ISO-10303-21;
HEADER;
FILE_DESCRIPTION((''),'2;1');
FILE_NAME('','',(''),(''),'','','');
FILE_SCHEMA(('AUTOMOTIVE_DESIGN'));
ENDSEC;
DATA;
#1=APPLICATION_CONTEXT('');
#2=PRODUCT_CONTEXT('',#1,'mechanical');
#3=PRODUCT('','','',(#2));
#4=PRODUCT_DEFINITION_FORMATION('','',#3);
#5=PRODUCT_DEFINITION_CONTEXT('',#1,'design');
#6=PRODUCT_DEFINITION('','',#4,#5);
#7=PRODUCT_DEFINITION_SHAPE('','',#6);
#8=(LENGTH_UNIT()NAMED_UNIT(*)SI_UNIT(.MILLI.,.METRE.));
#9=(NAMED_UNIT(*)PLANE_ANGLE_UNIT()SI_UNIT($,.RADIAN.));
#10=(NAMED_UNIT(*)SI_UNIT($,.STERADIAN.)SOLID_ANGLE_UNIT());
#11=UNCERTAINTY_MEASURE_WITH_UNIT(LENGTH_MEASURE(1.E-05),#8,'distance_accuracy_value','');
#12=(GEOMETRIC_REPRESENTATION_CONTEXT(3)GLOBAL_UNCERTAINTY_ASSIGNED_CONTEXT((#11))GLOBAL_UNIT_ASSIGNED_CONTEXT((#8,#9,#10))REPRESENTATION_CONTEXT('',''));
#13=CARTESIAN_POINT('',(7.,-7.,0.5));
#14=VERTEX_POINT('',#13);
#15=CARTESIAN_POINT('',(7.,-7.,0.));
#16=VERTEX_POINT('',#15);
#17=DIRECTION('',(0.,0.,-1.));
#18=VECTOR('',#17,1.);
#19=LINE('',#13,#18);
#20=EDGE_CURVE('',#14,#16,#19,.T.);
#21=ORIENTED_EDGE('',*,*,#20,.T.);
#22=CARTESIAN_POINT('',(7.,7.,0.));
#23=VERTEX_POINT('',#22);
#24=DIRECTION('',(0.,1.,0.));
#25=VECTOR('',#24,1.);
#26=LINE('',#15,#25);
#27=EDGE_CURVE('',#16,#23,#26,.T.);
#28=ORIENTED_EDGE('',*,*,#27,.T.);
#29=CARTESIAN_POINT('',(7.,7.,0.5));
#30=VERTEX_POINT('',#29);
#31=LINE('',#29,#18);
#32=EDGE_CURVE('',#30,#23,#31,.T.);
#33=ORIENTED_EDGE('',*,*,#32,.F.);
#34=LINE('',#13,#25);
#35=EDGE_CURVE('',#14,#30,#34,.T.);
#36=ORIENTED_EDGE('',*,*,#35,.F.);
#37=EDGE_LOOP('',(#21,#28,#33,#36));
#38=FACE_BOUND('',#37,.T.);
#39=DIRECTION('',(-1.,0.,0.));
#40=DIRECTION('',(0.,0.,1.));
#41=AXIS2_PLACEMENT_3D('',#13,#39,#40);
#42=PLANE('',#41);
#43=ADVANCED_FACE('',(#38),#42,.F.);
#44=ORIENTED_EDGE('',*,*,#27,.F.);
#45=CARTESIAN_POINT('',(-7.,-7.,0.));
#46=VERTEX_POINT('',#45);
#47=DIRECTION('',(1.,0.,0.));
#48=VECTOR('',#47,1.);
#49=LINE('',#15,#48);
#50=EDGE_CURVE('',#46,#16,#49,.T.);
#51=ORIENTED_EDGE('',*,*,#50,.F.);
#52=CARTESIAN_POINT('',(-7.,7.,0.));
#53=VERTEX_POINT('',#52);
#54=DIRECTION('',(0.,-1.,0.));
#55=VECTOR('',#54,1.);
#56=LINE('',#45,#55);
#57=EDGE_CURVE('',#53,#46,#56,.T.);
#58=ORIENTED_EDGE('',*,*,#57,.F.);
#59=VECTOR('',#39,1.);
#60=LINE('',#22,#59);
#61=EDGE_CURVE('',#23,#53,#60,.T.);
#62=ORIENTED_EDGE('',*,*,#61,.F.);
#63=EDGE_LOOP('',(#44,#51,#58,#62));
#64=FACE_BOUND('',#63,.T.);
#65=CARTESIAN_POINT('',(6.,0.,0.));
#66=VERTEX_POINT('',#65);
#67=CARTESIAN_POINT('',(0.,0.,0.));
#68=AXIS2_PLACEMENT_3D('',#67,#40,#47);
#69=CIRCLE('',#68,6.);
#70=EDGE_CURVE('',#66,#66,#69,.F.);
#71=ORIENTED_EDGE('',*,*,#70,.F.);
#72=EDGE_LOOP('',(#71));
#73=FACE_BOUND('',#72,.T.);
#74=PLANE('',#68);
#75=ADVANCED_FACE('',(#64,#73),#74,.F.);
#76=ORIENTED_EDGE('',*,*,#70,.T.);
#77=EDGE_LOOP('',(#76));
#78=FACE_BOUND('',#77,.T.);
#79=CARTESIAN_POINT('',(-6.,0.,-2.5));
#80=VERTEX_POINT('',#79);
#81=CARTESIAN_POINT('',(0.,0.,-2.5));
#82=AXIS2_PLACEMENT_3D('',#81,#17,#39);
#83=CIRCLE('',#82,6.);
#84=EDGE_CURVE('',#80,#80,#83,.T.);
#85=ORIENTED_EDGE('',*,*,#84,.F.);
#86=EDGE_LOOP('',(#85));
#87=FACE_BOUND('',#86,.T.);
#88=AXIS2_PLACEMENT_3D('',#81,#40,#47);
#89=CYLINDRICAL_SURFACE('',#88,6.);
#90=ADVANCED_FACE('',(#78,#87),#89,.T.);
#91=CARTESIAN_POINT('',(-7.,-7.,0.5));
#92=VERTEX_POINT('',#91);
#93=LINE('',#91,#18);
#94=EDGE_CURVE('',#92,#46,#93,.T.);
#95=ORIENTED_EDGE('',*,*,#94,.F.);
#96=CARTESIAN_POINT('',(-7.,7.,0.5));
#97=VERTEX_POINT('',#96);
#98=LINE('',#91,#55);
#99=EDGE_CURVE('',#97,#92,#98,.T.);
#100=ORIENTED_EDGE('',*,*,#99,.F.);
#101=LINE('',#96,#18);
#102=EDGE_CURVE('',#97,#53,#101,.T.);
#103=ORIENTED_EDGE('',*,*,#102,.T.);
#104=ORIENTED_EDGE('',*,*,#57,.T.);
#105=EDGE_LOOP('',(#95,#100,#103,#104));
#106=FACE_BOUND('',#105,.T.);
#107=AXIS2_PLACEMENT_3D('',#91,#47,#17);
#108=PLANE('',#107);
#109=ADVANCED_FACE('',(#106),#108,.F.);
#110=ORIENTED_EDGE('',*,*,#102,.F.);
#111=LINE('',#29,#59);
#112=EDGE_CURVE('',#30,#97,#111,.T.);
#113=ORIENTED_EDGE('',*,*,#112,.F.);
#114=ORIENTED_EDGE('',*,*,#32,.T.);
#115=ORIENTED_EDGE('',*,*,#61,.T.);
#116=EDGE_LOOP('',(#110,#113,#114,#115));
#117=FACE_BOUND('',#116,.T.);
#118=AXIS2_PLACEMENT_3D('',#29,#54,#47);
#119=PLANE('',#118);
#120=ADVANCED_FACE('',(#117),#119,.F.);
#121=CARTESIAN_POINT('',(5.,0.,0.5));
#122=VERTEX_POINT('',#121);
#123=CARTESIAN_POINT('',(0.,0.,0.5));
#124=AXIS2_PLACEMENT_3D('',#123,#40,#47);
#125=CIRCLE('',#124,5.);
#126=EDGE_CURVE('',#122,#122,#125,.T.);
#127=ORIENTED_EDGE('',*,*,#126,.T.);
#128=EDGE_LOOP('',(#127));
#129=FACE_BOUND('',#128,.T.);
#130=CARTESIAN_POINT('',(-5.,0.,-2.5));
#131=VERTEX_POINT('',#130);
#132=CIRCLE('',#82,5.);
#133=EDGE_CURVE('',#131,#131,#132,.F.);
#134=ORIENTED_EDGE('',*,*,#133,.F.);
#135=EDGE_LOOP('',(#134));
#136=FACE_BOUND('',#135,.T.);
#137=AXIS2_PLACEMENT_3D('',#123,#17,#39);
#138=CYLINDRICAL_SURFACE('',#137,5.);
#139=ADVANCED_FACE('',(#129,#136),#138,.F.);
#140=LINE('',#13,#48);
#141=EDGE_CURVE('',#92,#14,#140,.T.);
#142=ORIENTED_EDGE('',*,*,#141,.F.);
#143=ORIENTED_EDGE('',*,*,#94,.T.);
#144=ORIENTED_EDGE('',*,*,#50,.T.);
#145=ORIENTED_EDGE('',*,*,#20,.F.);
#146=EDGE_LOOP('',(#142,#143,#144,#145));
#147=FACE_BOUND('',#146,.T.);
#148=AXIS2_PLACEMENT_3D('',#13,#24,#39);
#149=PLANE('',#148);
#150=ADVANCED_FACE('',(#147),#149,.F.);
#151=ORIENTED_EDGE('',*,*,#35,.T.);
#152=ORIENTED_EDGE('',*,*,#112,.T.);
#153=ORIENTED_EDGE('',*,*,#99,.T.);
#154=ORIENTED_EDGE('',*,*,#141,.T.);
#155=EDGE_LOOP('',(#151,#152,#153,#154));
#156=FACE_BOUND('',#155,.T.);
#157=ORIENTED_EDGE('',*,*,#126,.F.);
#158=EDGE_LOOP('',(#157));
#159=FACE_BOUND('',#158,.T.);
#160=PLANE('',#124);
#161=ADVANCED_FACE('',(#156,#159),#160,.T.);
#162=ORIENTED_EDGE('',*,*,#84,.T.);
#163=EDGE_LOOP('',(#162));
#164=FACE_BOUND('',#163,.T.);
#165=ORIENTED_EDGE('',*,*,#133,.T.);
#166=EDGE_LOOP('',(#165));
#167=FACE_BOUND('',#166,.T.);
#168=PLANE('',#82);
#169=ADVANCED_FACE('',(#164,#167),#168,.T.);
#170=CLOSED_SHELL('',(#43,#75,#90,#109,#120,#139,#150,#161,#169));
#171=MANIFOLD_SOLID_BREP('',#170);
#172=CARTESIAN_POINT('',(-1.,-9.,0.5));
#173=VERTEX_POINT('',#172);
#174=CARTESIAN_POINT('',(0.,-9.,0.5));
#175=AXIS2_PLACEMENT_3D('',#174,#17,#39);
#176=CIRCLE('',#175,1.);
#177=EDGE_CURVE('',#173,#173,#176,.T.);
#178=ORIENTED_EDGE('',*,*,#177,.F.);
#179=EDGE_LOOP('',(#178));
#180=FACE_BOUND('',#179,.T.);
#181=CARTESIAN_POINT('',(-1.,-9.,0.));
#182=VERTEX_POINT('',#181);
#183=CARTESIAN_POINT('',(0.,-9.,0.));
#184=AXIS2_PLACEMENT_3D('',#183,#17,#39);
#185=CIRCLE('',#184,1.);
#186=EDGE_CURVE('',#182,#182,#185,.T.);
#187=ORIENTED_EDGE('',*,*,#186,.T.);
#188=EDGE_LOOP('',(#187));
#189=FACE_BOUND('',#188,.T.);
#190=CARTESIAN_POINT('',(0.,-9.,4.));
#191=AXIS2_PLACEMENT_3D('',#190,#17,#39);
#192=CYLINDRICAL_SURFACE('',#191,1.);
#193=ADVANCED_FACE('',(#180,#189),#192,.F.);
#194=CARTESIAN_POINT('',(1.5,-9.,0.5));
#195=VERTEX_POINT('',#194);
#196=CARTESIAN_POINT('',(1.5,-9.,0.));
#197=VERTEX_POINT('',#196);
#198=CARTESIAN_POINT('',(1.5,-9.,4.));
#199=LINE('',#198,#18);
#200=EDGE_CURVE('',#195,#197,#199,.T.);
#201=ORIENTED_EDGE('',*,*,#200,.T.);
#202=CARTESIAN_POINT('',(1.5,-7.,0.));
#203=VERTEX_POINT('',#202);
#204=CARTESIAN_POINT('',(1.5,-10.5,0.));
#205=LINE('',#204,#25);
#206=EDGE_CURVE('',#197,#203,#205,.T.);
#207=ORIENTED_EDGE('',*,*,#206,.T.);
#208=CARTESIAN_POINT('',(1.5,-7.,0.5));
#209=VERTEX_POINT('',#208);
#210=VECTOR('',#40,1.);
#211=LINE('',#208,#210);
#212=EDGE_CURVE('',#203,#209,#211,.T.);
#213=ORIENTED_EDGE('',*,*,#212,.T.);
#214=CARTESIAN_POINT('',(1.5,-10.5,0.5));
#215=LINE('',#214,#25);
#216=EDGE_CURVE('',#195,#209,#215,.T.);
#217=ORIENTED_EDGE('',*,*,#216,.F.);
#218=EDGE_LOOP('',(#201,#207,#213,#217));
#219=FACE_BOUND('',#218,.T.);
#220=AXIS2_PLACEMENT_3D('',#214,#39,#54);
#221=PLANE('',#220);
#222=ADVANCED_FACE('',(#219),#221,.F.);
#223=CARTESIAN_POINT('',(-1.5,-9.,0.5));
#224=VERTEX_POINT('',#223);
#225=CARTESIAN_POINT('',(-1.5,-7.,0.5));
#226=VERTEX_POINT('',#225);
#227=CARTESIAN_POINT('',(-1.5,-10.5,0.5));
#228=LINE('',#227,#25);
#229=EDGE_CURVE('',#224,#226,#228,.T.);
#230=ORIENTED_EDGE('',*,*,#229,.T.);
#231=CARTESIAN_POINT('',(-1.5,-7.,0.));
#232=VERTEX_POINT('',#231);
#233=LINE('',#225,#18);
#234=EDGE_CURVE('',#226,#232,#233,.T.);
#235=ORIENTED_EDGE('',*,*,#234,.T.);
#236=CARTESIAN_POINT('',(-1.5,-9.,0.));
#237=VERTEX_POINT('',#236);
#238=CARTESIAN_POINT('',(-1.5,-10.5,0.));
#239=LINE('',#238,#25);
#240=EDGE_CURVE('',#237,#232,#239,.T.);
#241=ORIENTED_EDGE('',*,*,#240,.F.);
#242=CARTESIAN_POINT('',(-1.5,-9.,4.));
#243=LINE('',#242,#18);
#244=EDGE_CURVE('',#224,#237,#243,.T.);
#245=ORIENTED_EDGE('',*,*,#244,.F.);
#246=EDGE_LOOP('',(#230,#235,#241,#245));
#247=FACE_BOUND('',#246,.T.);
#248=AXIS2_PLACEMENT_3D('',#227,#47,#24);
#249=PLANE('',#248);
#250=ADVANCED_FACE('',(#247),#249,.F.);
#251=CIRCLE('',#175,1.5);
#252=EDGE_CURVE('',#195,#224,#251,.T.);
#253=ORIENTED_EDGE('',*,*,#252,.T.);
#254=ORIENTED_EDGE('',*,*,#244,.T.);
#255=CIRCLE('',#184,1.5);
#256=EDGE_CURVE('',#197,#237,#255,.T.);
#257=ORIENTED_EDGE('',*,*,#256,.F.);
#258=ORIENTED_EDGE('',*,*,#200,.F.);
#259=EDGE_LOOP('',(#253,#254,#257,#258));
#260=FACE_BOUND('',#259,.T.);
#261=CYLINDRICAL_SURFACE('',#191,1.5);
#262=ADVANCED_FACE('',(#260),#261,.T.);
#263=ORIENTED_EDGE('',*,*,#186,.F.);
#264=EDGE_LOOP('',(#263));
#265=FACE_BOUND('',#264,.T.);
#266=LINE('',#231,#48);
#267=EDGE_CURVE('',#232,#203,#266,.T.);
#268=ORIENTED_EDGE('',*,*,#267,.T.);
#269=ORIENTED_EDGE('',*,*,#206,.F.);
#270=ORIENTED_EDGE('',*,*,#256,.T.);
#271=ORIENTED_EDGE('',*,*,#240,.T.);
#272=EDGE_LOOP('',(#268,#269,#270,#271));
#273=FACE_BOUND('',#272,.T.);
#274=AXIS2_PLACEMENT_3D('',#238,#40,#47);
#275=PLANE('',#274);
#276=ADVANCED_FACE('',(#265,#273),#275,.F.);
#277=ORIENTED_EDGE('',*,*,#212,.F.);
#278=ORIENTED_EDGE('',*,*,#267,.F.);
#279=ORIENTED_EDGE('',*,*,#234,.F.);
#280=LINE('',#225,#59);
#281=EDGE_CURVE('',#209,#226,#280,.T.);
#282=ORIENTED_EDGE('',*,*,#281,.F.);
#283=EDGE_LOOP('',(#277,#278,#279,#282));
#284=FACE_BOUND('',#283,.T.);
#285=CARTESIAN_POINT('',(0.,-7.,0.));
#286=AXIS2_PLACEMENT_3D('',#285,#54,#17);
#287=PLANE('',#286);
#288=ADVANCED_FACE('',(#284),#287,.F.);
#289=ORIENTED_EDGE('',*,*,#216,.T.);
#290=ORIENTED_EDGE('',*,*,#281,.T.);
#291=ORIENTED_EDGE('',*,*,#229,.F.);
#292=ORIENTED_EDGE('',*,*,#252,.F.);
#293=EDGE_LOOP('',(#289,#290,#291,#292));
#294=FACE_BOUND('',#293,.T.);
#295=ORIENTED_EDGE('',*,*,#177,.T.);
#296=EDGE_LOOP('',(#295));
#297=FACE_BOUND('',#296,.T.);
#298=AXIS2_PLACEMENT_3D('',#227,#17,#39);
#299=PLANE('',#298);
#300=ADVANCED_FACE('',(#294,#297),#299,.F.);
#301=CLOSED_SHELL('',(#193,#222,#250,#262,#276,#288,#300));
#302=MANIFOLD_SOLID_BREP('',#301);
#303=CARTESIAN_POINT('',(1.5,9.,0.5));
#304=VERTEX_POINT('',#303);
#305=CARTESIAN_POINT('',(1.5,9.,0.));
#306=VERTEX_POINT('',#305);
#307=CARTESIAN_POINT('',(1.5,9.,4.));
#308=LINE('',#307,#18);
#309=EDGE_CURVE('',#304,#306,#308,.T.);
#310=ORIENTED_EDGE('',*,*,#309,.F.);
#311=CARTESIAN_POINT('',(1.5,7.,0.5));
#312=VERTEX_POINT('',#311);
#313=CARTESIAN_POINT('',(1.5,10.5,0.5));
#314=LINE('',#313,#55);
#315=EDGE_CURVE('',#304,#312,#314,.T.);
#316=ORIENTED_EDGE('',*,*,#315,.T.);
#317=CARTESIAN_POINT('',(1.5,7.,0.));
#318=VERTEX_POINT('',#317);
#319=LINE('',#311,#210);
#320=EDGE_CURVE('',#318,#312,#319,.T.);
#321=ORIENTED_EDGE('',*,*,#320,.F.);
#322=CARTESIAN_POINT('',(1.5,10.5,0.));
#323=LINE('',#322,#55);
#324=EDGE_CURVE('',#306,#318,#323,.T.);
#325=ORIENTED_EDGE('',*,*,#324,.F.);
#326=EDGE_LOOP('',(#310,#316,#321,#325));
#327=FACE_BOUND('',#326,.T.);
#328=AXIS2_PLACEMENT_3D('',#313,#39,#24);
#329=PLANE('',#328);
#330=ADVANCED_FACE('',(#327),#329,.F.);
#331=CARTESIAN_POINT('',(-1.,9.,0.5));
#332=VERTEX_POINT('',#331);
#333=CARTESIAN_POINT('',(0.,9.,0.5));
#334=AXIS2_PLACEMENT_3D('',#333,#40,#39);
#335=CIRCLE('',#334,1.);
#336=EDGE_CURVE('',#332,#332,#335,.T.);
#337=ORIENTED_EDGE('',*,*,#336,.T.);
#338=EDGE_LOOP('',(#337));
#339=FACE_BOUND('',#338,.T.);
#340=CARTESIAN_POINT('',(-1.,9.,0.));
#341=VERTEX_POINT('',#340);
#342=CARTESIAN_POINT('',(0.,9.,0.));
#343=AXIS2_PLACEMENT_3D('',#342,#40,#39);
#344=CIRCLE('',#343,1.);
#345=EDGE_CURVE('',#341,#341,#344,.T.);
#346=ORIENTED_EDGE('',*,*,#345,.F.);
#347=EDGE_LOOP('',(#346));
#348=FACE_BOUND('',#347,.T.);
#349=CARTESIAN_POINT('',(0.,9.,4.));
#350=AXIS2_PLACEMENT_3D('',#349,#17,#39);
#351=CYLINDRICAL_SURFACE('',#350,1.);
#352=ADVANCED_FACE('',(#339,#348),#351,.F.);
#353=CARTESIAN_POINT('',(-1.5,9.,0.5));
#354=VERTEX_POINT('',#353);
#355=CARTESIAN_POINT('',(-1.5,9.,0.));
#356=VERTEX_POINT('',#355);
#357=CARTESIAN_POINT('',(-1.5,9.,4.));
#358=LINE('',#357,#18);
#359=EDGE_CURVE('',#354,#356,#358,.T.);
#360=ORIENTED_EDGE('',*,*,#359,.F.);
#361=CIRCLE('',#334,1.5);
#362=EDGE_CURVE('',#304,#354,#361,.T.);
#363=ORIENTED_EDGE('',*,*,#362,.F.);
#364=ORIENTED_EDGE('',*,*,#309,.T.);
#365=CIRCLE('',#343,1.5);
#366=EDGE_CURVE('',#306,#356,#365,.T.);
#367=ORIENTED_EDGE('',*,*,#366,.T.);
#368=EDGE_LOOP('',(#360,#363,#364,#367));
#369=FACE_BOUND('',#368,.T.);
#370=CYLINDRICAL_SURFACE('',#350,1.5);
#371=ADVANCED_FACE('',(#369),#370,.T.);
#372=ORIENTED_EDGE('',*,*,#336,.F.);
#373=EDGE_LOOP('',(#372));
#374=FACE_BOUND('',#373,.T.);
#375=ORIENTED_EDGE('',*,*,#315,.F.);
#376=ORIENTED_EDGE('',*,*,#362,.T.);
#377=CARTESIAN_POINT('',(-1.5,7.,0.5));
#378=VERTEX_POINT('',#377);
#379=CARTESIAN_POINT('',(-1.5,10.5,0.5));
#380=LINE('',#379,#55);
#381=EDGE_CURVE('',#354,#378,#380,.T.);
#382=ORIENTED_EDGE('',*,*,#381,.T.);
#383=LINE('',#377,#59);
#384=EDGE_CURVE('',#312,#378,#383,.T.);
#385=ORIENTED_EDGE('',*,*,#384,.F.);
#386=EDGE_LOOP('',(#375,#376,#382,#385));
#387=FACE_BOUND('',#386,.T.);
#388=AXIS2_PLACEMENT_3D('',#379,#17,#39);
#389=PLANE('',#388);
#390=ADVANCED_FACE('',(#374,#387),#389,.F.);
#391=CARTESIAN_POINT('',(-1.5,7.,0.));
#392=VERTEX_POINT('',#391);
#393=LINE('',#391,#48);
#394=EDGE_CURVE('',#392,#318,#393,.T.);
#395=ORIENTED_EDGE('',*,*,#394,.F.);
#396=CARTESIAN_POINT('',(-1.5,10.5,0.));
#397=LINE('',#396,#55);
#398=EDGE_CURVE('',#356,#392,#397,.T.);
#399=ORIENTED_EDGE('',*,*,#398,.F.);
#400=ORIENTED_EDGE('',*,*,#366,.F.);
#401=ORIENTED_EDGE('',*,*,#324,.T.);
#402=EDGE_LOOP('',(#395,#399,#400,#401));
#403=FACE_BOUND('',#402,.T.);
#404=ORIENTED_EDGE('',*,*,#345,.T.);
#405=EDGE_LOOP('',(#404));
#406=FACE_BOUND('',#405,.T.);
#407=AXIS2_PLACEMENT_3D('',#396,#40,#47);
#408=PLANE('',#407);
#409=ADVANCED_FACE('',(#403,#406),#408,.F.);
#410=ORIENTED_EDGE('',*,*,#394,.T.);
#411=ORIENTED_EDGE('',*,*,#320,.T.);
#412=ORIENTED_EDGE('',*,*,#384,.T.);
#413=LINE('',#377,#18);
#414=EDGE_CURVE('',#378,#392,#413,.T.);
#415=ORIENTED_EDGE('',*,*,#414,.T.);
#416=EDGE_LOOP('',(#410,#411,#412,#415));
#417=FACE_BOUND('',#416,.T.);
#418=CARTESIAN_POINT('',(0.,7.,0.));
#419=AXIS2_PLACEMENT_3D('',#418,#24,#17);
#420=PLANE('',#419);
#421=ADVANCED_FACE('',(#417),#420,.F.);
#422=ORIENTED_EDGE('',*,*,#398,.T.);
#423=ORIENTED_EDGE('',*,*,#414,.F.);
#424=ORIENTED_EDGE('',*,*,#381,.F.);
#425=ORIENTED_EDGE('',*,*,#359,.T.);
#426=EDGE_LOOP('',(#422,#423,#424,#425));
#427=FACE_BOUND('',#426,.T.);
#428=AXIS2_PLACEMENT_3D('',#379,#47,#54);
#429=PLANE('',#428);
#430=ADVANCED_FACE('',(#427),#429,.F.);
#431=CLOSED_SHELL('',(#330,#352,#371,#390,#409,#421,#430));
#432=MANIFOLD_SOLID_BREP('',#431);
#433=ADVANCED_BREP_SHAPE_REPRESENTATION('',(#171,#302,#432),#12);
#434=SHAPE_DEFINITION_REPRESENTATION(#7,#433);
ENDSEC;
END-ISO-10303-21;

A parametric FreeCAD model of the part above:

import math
import FreeCAD as App
import Part
import Sketcher

V = App.Vector


def add_polygon(sketch, points):
    """Adds a closed chain of lines whose ends are joined by coincident constraints."""
    first, n = sketch.GeometryCount, len(points)
    for a, b in zip(points, points[1:] + points[:1]):
        sketch.addGeometry(Part.LineSegment(App.Vector(*a, 0), App.Vector(*b, 0)), False)
    for i in range(n):
        sketch.addConstraint(Sketcher.Constraint("Coincident", first + i, 2, first + (i + 1) % n, 1))

doc = App.newDocument("Part")
body = doc.addObject("PartDesign::Body", "Body")

sketch1 = body.newObject("Sketcher::SketchObject", "Sketch")
sketch1.AttachmentSupport = (doc.getObject("XY_Plane"), [""])
sketch1.MapMode = "FlatFace"
add_polygon(sketch1, [(-7, 7), (-7, -7), (7, -7), (7, 7)])
sketch1.addGeometry(Part.Circle(V(0, 0, 0), V(0, 0, 1), 5), False)
sketch1.addConstraint([
    Sketcher.Constraint("Vertical", 0),
    Sketcher.Constraint("Horizontal", 1),
    Sketcher.Constraint("Vertical", 2),
    Sketcher.Constraint("Horizontal", 3),
    Sketcher.Constraint("Coincident", 4, 3, -1, 1),
    Sketcher.Constraint("Symmetric", 0, 2, 2, 2, -1, 1),
    Sketcher.Constraint("Equal", 3, 0),
    Sketcher.Constraint("Diameter", 4, 10.0),
    Sketcher.Constraint("DistanceX", 1, 1, 1, 2, 14.0),
])
pad1 = body.newObject("PartDesign::Pad", "Pad")
pad1.Profile = sketch1
pad1.Length = 0.5

sketch2 = body.newObject("Sketcher::SketchObject", "Sketch001")
sketch2.AttachmentSupport = (doc.getObject("XY_Plane"), [""])
sketch2.MapMode = "FlatFace"
sketch2.AttachmentOffset = App.Placement(V(0, 0, -2.5), App.Rotation())
sketch2.addGeometry([
    Part.Circle(V(0, 0, 0), V(0, 0, 1), 6),
    Part.Circle(V(0, 0, 0), V(0, 0, 1), 5),
], False)
sketch2.addConstraint([
    Sketcher.Constraint("Coincident", 0, 3, -1, 1),
    Sketcher.Constraint("Coincident", 1, 3, -1, 1),
    Sketcher.Constraint("Diameter", 0, 12.0),
    Sketcher.Constraint("Diameter", 1, 10.0),
])
pad2 = body.newObject("PartDesign::Pad", "Pad001")
pad2.Profile = sketch2
pad2.Length = 2.5
body2 = doc.addObject("PartDesign::Body", "Body001")

sketch3 = body2.newObject("Sketcher::SketchObject", "Sketch002")
sketch3.AttachmentSupport = (doc.getObject("XZ_Plane001"), [""])
sketch3.MapMode = "FlatFace"
sketch3.AttachmentOffset = App.Placement(V(0, 0, 7), App.Rotation())
add_polygon(sketch3, [(-1.5, 0.5), (-1.5, 0), (1.5, 0), (1.5, 0.5)])
sketch3.addConstraint([
    Sketcher.Constraint("Vertical", 0),
    Sketcher.Constraint("Horizontal", 1),
    Sketcher.Constraint("Vertical", 2),
    Sketcher.Constraint("Horizontal", 3),
    Sketcher.Constraint("Symmetric", 0, 2, 1, 2, -1, 1),
    Sketcher.Constraint("DistanceX", 1, 1, 1, 2, 3.0),
    Sketcher.Constraint("DistanceY", 0, 2, 0, 1, 0.5),
])
pad3 = body2.newObject("PartDesign::Pad", "Pad002")
pad3.Profile = sketch3
pad3.Length = 3.5

sketch4 = body2.newObject("Sketcher::SketchObject", "Sketch003")
sketch4.AttachmentSupport = (doc.getObject("XY_Plane001"), [""])
sketch4.MapMode = "FlatFace"
sketch4.addGeometry([
    Part.LineSegment(V(-1.5, -10.5, 0), V(-1.5, -9, 0)),
    Part.ArcOfCircle(Part.Circle(V(0, -9, 0), V(0, 0, 1), 1.5), math.radians(180), math.radians(270)),
    Part.LineSegment(V(0, -10.5, 0), V(-1.5, -10.5, 0)),
    Part.ArcOfCircle(Part.Circle(V(0, -9, 0), V(0, 0, 1), 1.5), math.radians(-90), math.radians(0)),
    Part.LineSegment(V(1.5, -9, 0), V(1.5, -10.5, 0)),
    Part.LineSegment(V(1.5, -10.5, 0), V(0, -10.5, 0)),
], False)
sketch4.addConstraint([
    Sketcher.Constraint("Tangent", 0, 2, 1, 1),
    Sketcher.Constraint("Tangent", 1, 2, 2, 1),
    Sketcher.Constraint("Coincident", 2, 2, 0, 1),
    Sketcher.Constraint("Tangent", 3, 2, 4, 1),
    Sketcher.Constraint("Coincident", 4, 2, 5, 1),
    Sketcher.Constraint("Tangent", 5, 2, 3, 1),
    Sketcher.Constraint("Vertical", 0),
    Sketcher.Constraint("Horizontal", 2),
    Sketcher.Constraint("Vertical", 4),
    Sketcher.Constraint("Horizontal", 5),
    Sketcher.Constraint("Coincident", 3, 3, 1, 3),
    Sketcher.Constraint("Equal", 1, 3),
    Sketcher.Constraint("PointOnObject", 1, 3, -2),
    Sketcher.Constraint("Radius", 1, 1.5),
    Sketcher.Constraint("DistanceY", 1, 3, -1, 1, 9.0),
])
pocket1 = body2.newObject("PartDesign::Pocket", "Pocket")
pocket1.Profile = sketch4
pocket1.Length = 4
pocket1.Reversed = True

sketch5 = body2.newObject("Sketcher::SketchObject", "Sketch004")
sketch5.AttachmentSupport = (doc.getObject("XY_Plane001"), [""])
sketch5.MapMode = "FlatFace"
sketch5.addGeometry(Part.Circle(V(0, -9, 0), V(0, 0, 1), 1), False)
sketch5.addConstraint([
    Sketcher.Constraint("PointOnObject", 0, 3, -2),
    Sketcher.Constraint("Diameter", 0, 2.0),
    Sketcher.Constraint("DistanceY", 0, 3, -1, 1, 9.0),
])
pocket2 = body2.newObject("PartDesign::Pocket", "Pocket001")
pocket2.Profile = sketch5
pocket2.Length = 4
pocket2.Reversed = True
body3 = doc.addObject("PartDesign::Body", "Body002")
doc.recompute()

mirroring = doc.addObject("Part::Mirroring", "Mirroring")
mirroring.Source = body2
mirroring.Base = V(0, 0, 0)
mirroring.Normal = V(0, 1, 0)
body3.BaseFeature = mirroring
doc.recompute()
mirroring.Visibility = False

doc.recompute()
